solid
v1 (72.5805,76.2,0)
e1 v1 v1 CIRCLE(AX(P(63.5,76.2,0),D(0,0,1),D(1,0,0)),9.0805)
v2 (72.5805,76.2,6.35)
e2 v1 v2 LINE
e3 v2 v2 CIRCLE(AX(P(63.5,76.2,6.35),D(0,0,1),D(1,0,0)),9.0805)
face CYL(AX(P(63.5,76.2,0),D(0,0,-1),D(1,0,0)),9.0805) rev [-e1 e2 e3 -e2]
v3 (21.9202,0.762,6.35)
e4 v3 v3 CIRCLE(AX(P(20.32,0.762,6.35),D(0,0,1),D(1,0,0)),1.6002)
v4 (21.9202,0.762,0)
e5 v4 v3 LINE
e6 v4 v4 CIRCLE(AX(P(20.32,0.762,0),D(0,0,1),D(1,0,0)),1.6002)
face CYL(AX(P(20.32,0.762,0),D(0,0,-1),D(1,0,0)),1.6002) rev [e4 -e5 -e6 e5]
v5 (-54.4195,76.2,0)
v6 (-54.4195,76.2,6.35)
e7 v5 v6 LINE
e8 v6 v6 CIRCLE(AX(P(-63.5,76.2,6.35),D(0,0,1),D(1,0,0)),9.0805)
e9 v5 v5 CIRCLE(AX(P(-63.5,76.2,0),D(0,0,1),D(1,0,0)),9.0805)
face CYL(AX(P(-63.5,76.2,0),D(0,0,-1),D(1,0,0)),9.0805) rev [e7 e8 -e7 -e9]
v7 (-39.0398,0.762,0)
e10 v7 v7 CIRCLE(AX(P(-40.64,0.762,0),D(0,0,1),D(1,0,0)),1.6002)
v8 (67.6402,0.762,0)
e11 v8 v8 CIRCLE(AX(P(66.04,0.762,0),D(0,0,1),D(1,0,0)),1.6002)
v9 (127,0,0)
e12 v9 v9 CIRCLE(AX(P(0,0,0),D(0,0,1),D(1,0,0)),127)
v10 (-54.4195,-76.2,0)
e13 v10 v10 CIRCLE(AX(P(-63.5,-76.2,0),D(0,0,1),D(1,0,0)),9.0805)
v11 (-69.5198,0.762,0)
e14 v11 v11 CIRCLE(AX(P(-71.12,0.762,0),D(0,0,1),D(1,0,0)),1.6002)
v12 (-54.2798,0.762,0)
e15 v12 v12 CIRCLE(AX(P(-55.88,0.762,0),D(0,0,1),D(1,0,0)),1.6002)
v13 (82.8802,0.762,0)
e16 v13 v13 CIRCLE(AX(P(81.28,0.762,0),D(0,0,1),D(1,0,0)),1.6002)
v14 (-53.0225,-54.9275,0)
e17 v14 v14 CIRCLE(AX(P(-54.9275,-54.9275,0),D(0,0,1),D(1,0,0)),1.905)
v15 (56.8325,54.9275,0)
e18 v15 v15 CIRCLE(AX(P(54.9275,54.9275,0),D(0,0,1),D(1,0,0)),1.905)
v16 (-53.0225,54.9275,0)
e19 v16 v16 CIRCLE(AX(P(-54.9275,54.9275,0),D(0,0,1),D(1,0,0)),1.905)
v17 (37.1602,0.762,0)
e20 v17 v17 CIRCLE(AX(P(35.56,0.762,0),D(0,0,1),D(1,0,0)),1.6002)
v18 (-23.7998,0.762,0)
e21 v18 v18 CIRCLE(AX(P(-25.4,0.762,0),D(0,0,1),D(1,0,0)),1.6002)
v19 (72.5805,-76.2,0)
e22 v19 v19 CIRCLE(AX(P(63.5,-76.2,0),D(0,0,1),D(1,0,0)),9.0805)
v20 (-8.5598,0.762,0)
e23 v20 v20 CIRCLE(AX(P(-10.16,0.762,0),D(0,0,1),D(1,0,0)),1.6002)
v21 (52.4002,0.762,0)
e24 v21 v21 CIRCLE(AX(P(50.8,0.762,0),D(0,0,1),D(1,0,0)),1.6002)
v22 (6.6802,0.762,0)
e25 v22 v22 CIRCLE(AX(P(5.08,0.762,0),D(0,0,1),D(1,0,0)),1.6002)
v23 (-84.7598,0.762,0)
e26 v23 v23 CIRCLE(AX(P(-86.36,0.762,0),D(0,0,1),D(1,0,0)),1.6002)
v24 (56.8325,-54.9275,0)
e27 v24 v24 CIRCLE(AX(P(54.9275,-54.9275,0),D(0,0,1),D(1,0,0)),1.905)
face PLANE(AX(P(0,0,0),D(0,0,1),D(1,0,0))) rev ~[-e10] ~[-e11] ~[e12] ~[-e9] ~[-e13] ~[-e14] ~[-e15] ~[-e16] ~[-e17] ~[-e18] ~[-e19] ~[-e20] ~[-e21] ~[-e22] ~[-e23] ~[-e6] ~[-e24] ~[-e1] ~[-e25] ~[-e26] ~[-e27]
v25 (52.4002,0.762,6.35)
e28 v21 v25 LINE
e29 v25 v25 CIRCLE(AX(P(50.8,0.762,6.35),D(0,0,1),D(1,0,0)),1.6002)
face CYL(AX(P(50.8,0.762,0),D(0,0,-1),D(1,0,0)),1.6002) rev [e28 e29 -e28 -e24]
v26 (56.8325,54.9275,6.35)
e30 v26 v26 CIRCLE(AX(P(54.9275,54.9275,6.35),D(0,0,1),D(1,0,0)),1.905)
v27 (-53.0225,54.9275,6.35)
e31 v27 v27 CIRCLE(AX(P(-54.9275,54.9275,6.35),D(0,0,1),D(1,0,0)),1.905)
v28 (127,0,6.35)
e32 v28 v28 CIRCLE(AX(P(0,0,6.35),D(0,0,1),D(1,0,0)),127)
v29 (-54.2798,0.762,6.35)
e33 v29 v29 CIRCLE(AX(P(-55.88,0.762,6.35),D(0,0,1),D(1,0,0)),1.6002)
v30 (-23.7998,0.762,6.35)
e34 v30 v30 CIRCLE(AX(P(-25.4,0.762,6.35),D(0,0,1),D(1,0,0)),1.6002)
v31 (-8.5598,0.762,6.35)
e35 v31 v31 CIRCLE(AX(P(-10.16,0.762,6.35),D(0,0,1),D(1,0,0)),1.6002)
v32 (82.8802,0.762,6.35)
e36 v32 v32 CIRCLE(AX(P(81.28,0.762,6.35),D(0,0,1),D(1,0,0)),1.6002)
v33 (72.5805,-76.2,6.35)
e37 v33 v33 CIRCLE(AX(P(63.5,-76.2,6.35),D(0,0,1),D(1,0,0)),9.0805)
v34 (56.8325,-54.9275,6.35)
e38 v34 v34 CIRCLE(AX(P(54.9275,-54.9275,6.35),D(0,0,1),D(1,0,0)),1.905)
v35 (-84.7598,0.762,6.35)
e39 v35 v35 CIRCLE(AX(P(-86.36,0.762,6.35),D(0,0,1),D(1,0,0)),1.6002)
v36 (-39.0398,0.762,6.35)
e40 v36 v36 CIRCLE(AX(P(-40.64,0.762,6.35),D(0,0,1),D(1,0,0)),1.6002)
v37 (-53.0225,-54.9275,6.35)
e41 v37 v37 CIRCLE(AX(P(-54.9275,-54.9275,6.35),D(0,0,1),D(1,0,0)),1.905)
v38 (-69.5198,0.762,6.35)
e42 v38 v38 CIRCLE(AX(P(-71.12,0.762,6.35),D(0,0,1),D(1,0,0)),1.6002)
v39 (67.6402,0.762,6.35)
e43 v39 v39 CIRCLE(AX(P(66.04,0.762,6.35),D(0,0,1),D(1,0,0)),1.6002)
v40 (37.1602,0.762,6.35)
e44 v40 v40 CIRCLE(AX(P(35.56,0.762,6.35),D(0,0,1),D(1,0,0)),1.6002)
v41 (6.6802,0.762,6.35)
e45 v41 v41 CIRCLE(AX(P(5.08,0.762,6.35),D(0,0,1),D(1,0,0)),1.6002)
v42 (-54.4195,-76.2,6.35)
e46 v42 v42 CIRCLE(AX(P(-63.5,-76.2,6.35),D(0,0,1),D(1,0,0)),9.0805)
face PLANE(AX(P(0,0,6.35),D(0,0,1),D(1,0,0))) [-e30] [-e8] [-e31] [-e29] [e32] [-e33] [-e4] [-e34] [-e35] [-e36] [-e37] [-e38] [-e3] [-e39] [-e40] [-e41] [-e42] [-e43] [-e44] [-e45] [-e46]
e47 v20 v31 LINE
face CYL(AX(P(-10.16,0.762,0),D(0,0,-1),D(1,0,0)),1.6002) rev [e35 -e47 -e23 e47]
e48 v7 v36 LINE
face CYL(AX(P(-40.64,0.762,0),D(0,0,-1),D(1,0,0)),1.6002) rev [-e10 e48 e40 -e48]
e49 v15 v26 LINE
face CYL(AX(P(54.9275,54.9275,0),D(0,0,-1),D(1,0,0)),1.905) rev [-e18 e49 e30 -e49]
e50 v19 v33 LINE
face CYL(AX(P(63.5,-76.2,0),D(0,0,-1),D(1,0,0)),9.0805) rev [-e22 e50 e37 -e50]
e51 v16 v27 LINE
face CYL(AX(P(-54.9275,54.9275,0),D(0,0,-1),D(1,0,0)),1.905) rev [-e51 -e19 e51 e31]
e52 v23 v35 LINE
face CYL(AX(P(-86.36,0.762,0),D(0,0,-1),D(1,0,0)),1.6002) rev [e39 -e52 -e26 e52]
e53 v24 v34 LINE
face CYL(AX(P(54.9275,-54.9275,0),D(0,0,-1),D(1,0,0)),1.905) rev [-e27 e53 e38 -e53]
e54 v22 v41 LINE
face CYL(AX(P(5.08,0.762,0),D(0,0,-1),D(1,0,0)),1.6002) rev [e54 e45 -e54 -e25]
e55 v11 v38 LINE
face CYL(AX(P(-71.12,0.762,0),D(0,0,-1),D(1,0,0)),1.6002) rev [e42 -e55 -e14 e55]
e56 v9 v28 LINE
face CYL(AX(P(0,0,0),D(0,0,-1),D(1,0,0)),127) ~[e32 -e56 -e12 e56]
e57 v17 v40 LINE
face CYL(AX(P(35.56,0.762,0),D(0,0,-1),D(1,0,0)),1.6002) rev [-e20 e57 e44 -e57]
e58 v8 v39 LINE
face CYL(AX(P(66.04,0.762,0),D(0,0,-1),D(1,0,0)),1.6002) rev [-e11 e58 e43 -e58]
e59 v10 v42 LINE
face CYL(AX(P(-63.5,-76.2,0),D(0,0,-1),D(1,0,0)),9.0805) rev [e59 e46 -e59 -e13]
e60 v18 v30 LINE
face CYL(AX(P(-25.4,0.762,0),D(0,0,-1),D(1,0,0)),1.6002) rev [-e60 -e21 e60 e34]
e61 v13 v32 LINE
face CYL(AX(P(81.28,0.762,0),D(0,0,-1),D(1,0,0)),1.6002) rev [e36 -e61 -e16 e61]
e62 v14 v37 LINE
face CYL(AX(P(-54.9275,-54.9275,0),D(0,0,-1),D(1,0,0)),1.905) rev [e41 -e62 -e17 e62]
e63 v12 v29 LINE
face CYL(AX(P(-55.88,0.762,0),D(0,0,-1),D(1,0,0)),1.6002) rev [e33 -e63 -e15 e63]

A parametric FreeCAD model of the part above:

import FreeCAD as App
import Part
import Sketcher

V = App.Vector
Q = App.Units.Quantity

doc = App.newDocument("Part")
body = doc.addObject("PartDesign::Body", "Body")

sketch1 = body.newObject("Sketcher::SketchObject", "Sketch")
sketch1.AttachmentSupport = (doc.getObject("XY_Plane"), [""])
sketch1.MapMode = "FlatFace"
sketch1.addGeometry(Part.Circle(V(0, 0, 0), V(0, 0, 1), 127), False)
sketch1.addGeometry(Part.Circle(V(-63.5, -76.2, 0), V(0, 0, 1), 9.0805), False)
sketch1.addGeometry(Part.Circle(V(-54.9275, -54.9275, 0), V(0, 0, 1), 1.905), False)
sketch1.addGeometry(Part.Circle(V(63.5, -76.2, 0), V(0, 0, 1), 9.0805), False)
sketch1.addGeometry(Part.Circle(V(54.9275, -54.9275, 0), V(0, 0, 1), 1.905), False)
sketch1.addGeometry(Part.Circle(V(-86.36, 0.762, 0), V(0, 0, 1), 1.6002), False)
sketch1.addGeometry(Part.Circle(V(-71.12, 0.762, 0), V(0, 0, 1), 1.6002), False)
sketch1.addGeometry(Part.Circle(V(-55.88, 0.762, 0), V(0, 0, 1), 1.6002), False)
sketch1.addGeometry(Part.Circle(V(-40.64, 0.762, 0), V(0, 0, 1), 1.6002), False)
sketch1.addGeometry(Part.Circle(V(-25.4, 0.762, 0), V(0, 0, 1), 1.6002), False)
sketch1.addGeometry(Part.Circle(V(-10.16, 0.762, 0), V(0, 0, 1), 1.6002), False)
sketch1.addGeometry(Part.Circle(V(-54.9275, 54.9275, 0), V(0, 0, 1), 1.905), False)
sketch1.addGeometry(Part.Circle(V(-63.5, 76.2, 0), V(0, 0, 1), 9.0805), False)
sketch1.addGeometry(Part.Circle(V(5.08, 0.762, 0), V(0, 0, 1), 1.6002), False)
sketch1.addGeometry(Part.Circle(V(20.32, 0.762, 0), V(0, 0, 1), 1.6002), False)
sketch1.addGeometry(Part.Circle(V(35.56, 0.762, 0), V(0, 0, 1), 1.6002), False)
sketch1.addGeometry(Part.Circle(V(50.8, 0.762, 0), V(0, 0, 1), 1.6002), False)
sketch1.addGeometry(Part.Circle(V(66.04, 0.762, 0), V(0, 0, 1), 1.6002), False)
sketch1.addGeometry(Part.Circle(V(81.28, 0.762, 0), V(0, 0, 1), 1.6002), False)
sketch1.addGeometry(Part.Circle(V(54.9275, 54.9275, 0), V(0, 0, 1), 1.905), False)
sketch1.addGeometry(Part.Circle(V(63.5, 76.2, 0), V(0, 0, 1), 9.0805), False)
sketch1.addConstraint(Sketcher.Constraint("Coincident", 0, 3, -1, 1))
sketch1.addConstraint(Sketcher.Constraint("Equal", 1, 3))
sketch1.addConstraint(Sketcher.Constraint("Equal", 2, 4))
sketch1.addConstraint(Sketcher.Constraint("Equal", 5, 6))
sketch1.addConstraint(Sketcher.Constraint("Equal", 6, 7))
sketch1.addConstraint(Sketcher.Constraint("Equal", 7, 8))
sketch1.addConstraint(Sketcher.Constraint("Equal", 8, 9))
sketch1.addConstraint(Sketcher.Constraint("Equal", 9, 10))
sketch1.addConstraint(Sketcher.Constraint("Equal", 4, 11))
sketch1.addConstraint(Sketcher.Constraint("Equal", 3, 12))
sketch1.addConstraint(Sketcher.Constraint("Equal", 10, 13))
sketch1.addConstraint(Sketcher.Constraint("Equal", 13, 14))
sketch1.addConstraint(Sketcher.Constraint("Equal", 14, 15))
sketch1.addConstraint(Sketcher.Constraint("Equal", 15, 16))
sketch1.addConstraint(Sketcher.Constraint("Equal", 16, 17))
sketch1.addConstraint(Sketcher.Constraint("Equal", 17, 18))
sketch1.addConstraint(Sketcher.Constraint("Equal", 11, 19))
sketch1.addConstraint(Sketcher.Constraint("Equal", 12, 20))
sketch1.addConstraint(Sketcher.Constraint("Symmetric", 4, 3, 11, 3, -1, 1))
sketch1.addConstraint(Sketcher.Constraint("Symmetric", 3, 3, 12, 3, -1, 1))
sketch1.addConstraint(Sketcher.Constraint("Symmetric", 2, 3, 19, 3, -1, 1))
sketch1.addConstraint(Sketcher.Constraint("Symmetric", 1, 3, 20, 3, -1, 1))
sketch1.addConstraint(Sketcher.Constraint("Symmetric", 1, 3, 3, 3, -2))
sketch1.addConstraint(Sketcher.Constraint("Symmetric", 2, 3, 4, 3, -2))
sketch1.addConstraint(Sketcher.Constraint("Horizontal", 5, 3, 6, 3))
sketch1.addConstraint(Sketcher.Constraint("Horizontal", 6, 3, 7, 3))
sketch1.addConstraint(Sketcher.Constraint("Horizontal", 7, 3, 8, 3))
sketch1.addConstraint(Sketcher.Constraint("Horizontal", 8, 3, 9, 3))
sketch1.addConstraint(Sketcher.Constraint("Horizontal", 9, 3, 10, 3))
sketch1.addConstraint(Sketcher.Constraint("Horizontal", 10, 3, 13, 3))
sketch1.addConstraint(Sketcher.Constraint("Horizontal", 13, 3, 14, 3))
sketch1.addConstraint(Sketcher.Constraint("Horizontal", 14, 3, 15, 3))
sketch1.addConstraint(Sketcher.Constraint("Horizontal", 15, 3, 16, 3))
sketch1.addConstraint(Sketcher.Constraint("Horizontal", 16, 3, 17, 3))
sketch1.addConstraint(Sketcher.Constraint("Horizontal", 17, 3, 18, 3))
sketch1.addConstraint(Sketcher.Constraint("Diameter", 0, Q("10 in")))
sketch1.addConstraint(Sketcher.Constraint("Diameter", 2, Q("0.15 in")))
sketch1.addConstraint(Sketcher.Constraint("Diameter", 1, Q("0.715 in")))
sketch1.addConstraint(Sketcher.Constraint("Diameter", 5, Q("0.126 in")))
sketch1.addConstraint(Sketcher.Constraint("DistanceY", 1, 3, -1, 1, Q("3 in")))
sketch1.addConstraint(Sketcher.Constraint("DistanceX", 9, 3, -1, 1, Q("1 in")))
sketch1.addConstraint(Sketcher.Constraint("DistanceX", -1, 1, 16, 3, Q("2 in")))
sketch1.addConstraint(Sketcher.Constraint("DistanceX", 1, 3, 3, 3, Q("5 in")))
sketch1.addConstraint(Sketcher.Constraint("DistanceX", 5, 3, -1, 1, Q("3.4 in")))
sketch1.addConstraint(Sketcher.Constraint("DistanceX", 6, 3, -1, 1, Q("2.8 in")))
sketch1.addConstraint(Sketcher.Constraint("DistanceX", 7, 3, -1, 1, Q("2.2 in")))
sketch1.addConstraint(Sketcher.Constraint("DistanceX", 8, 3, -1, 1, Q("1.6 in")))
sketch1.addConstraint(Sketcher.Constraint("DistanceX", 10, 3, -1, 1, Q("0.4 in")))
sketch1.addConstraint(Sketcher.Constraint("DistanceX", -1, 1, 13, 3, Q("0.2 in")))
sketch1.addConstraint(Sketcher.Constraint("DistanceX", -1, 1, 14, 3, Q("0.8 in")))
sketch1.addConstraint(Sketcher.Constraint("DistanceX", -1, 1, 15, 3, Q("1.4 in")))
sketch1.addConstraint(Sketcher.Constraint("DistanceX", -1, 1, 17, 3, Q("2.6 in")))
sketch1.addConstraint(Sketcher.Constraint("DistanceX", -1, 1, 18, 3, Q("3.2 in")))
sketch1.addConstraint(Sketcher.Constraint("DistanceY", -1, 1, 5, 3, Q("0.03 in")))
sketch1.addConstraint(Sketcher.Constraint("DistanceX", 2, 3, 4, 3, Q("4.325 in")))
sketch1.addConstraint(Sketcher.Constraint("DistanceY", 2, 3, -1, 1, Q("2.1625 in")))
pad1 = body.newObject("PartDesign::Pad", "Pad")
pad1.Profile = sketch1
pad1.Length = Q("0.25 in")

doc.recompute()
